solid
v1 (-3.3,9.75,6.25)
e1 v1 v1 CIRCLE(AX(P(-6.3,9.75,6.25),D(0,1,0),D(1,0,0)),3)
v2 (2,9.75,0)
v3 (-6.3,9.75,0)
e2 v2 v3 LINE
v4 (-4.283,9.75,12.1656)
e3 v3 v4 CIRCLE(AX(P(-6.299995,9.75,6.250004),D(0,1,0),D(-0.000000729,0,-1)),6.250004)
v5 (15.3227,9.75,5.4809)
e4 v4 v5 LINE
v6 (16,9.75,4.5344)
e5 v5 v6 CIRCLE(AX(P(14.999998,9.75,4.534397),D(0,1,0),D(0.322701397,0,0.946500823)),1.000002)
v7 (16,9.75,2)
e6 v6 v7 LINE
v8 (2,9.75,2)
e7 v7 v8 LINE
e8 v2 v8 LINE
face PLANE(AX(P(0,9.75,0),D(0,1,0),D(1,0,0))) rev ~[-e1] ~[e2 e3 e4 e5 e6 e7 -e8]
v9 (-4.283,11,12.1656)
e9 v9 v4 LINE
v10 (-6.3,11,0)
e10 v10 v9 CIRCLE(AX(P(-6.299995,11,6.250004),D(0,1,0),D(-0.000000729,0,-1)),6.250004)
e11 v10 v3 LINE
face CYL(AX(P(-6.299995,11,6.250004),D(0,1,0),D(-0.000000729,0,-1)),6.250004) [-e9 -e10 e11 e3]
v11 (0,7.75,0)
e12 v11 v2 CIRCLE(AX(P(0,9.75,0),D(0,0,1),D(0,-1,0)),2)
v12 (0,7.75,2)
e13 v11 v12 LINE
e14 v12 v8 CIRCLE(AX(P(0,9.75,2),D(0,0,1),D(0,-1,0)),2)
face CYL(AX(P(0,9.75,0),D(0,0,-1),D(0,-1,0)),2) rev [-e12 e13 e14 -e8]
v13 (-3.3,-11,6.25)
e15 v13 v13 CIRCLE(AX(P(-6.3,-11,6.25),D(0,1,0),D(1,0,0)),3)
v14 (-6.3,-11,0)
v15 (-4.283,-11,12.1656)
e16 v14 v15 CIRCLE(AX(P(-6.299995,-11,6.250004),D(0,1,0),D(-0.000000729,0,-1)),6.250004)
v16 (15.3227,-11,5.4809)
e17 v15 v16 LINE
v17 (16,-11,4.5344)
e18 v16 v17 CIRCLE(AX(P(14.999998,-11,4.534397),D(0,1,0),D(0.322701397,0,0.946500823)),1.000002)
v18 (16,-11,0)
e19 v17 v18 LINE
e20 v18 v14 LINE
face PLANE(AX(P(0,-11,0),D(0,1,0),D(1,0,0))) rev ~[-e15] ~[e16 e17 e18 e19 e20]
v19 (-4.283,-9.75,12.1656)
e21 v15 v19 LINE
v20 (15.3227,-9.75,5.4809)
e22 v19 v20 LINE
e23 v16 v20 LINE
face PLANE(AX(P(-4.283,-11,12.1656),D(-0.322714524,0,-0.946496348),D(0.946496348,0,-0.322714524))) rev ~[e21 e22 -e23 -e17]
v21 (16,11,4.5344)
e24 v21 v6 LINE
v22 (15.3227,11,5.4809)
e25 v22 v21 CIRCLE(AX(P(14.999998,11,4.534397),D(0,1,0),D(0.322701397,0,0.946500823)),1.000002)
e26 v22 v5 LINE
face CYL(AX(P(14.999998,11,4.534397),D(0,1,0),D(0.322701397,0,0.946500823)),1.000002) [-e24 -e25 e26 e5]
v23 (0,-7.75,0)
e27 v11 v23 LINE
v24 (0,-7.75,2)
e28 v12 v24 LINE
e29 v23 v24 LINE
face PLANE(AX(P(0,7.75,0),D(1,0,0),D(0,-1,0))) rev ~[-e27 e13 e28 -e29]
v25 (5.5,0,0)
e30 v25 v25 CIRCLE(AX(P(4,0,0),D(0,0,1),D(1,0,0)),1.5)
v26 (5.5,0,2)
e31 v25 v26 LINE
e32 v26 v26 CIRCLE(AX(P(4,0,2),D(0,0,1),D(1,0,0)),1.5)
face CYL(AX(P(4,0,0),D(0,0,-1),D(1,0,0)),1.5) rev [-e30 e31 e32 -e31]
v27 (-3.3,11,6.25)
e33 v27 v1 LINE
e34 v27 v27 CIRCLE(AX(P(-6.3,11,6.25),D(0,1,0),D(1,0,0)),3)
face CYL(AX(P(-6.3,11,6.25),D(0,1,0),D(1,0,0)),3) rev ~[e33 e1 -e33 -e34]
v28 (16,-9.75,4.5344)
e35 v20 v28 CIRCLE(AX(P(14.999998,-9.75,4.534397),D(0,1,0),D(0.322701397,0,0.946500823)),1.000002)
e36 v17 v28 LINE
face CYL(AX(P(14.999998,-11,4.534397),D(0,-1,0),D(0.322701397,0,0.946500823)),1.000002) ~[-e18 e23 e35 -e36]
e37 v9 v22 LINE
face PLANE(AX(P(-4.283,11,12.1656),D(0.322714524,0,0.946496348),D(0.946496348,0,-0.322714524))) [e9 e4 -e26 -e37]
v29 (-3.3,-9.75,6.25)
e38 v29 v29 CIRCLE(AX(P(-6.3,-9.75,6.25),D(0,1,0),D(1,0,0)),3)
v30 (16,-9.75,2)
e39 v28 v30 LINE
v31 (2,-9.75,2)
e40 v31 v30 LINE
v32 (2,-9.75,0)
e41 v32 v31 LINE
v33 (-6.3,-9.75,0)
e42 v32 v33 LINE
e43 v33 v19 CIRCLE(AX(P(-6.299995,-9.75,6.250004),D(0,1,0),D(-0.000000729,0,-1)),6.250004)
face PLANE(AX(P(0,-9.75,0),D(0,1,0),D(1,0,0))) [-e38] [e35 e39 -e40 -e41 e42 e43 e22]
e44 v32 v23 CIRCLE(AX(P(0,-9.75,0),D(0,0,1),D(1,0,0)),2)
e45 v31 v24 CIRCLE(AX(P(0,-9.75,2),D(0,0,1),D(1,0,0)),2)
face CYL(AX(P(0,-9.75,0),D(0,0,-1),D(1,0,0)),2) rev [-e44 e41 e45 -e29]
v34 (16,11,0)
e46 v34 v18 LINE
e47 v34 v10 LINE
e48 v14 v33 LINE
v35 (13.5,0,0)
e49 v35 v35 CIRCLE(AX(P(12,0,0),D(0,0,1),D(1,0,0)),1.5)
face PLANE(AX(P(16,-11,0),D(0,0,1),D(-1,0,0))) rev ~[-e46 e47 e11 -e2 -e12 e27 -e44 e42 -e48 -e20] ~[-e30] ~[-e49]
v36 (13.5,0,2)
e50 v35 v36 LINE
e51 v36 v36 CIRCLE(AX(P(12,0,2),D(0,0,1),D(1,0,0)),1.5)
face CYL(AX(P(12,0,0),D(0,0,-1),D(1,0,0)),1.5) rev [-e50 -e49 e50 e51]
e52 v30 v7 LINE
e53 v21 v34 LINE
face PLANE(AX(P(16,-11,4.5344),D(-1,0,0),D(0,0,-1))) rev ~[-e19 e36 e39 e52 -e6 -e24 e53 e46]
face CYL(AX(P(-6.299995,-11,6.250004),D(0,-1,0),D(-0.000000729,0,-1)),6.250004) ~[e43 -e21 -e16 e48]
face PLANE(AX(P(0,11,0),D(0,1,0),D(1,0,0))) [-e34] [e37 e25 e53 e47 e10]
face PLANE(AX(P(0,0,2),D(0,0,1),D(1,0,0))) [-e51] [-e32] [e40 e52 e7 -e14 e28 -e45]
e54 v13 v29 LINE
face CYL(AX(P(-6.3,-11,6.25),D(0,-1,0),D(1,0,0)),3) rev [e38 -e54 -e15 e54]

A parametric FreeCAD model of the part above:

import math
import FreeCAD as App
import Part
import Sketcher

V = App.Vector
Q = App.Units.Quantity

doc = App.newDocument("Part")
body = doc.addObject("PartDesign::Body", "Body")

sketch1 = doc.addObject("Sketcher::SketchObject", "Sketch")
body.addObject(sketch1)
sketch1.AttachmentSupport = (doc.XY_Plane, [""])
sketch1.MapMode = "FlatFace"
sketch1.addGeometry(Part.ArcOfCircle(Part.Circle(V(0, -9.8, 0), V(0, 0, 1), 2), math.radians(0), math.radians(90)), False)
sketch1.addGeometry(Part.LineSegment(V(2, -9.8, 0), V(16, -9.8, 0)), False)
sketch1.addGeometry(Part.LineSegment(V(16, -9.8, 0), V(16, 9.8, 0)), False)
sketch1.addGeometry(Part.LineSegment(V(16, 9.8, 0), V(2, 9.8, 0)), False)
sketch1.addGeometry(Part.ArcOfCircle(Part.Circle(V(0, 9.8, 0), V(0, 0, 1), 2), math.radians(-90), math.radians(0)), False)
sketch1.addGeometry(Part.LineSegment(V(0, 7.8, 0), V(0, -7.8, 0)), False)
sketch1.addGeometry(Part.Circle(V(4, 0, 0), V(0, 0, 1), 1.5), False)
sketch1.addGeometry(Part.Circle(V(12, 0, 0), V(0, 0, 1), 1.5), False)
sketch1.addConstraint(Sketcher.Constraint("Coincident", 0, 1, 1, 1))
sketch1.addConstraint(Sketcher.Constraint("Coincident", 1, 2, 2, 1))
sketch1.addConstraint(Sketcher.Constraint("Coincident", 2, 2, 3, 1))
sketch1.addConstraint(Sketcher.Constraint("Coincident", 3, 2, 4, 2))
sketch1.addConstraint(Sketcher.Constraint("Coincident", 4, 1, 5, 1))
sketch1.addConstraint(Sketcher.Constraint("Coincident", 5, 2, 0, 2))
sketch1.addConstraint(Sketcher.Constraint("Horizontal", 1))
sketch1.addConstraint(Sketcher.Constraint("Vertical", 2))
sketch1.addConstraint(Sketcher.Constraint("Horizontal", 3))
sketch1.addConstraint(Sketcher.Constraint("Vertical", 5))
sketch1.addConstraint(Sketcher.Constraint("Equal", 0, 4))
sketch1.addConstraint(Sketcher.Constraint("Equal", 6, 7))
sketch1.addConstraint(Sketcher.Constraint("Symmetric", 0, 3, 4, 3, -1, 1))
sketch1.addConstraint(Sketcher.Constraint("Symmetric", 0, 1, 3, 2, -1))
sketch1.addConstraint(Sketcher.Constraint("PointOnObject", 6, 3, -1))
sketch1.addConstraint(Sketcher.Constraint("PointOnObject", 7, 3, -1))
sketch1.addConstraint(Sketcher.Constraint("PointOnObject", 4, 1, -2))
sketch1.addConstraint(Sketcher.Constraint("Horizontal", 4, 3, 2, 2))
sketch1.addConstraint(Sketcher.Constraint("Diameter", 6, Q("3 mm")))
sketch1.addConstraint(Sketcher.Constraint("Radius", 0, Q("2 mm")))
sketch1.addConstraint(Sketcher.Constraint("DistanceX", 1, 1, 1, 2, Q("14 mm")))
sketch1.addConstraint(Sketcher.Constraint("DistanceY", 2, 1, 2, 2, Q("19.5 mm")))
sketch1.addConstraint(Sketcher.Constraint("DistanceX", -1, 1, 6, 3, Q("4 mm")))
sketch1.addConstraint(Sketcher.Constraint("DistanceX", -1, 1, 7, 3, Q("12 mm")))
pad1 = doc.addObject("PartDesign::Pad", "Pad")
body.addObject(pad1)
pad1.Profile = sketch1
pad1.Length = 2

sketch2 = doc.addObject("Sketcher::SketchObject", "Sketch001")
body.addObject(sketch2)
sketch2.AttachmentSupport = (doc.XZ_Plane, [""])
sketch2.MapMode = "FlatFace"
sketch2.AttachmentOffset = App.Placement(V(0, 0, -11), App.Rotation())
sketch2.addGeometry(Part.LineSegment(V(16, 0, 0), V(-6.3, 0, 0)), False)
sketch2.addGeometry(Part.ArcOfCircle(Part.Circle(V(-6.3, 6.2, 0), V(0, 0, 1), 6.2), math.radians(71), math.radians(270)), False)
sketch2.addGeometry(Part.LineSegment(V(-4.3, 12.2, 0), V(15.3, 5.5, 0)), False)
sketch2.addGeometry(Part.ArcOfCircle(Part.Circle(V(15, 4.5, 0), V(0, 0, 1), 1), math.radians(0), math.radians(71)), False)
sketch2.addGeometry(Part.LineSegment(V(16, 4.5, 0), V(16, 0, 0)), False)
sketch2.addGeometry(Part.Circle(V(-6.3, 6.2, 0), V(0, 0, 1), 3), False)
sketch2.addConstraint(Sketcher.Constraint("Tangent", 0, 2, 1, 2))
sketch2.addConstraint(Sketcher.Constraint("Tangent", 1, 1, 2, 1))
sketch2.addConstraint(Sketcher.Constraint("Tangent", 2, 2, 3, 2))
sketch2.addConstraint(Sketcher.Constraint("Tangent", 3, 1, 4, 1))
sketch2.addConstraint(Sketcher.Constraint("Coincident", 4, 2, 0, 1))
sketch2.addConstraint(Sketcher.Constraint("Horizontal", 0))
sketch2.addConstraint(Sketcher.Constraint("Vertical", 4))
sketch2.addConstraint(Sketcher.Constraint("Coincident", 5, 3, 1, 3))
sketch2.addConstraint(Sketcher.Constraint("PointOnObject", 0, 2, -1))
sketch2.addConstraint(Sketcher.Constraint("Diameter", 5, Q("6 mm")))
sketch2.addConstraint(Sketcher.Constraint("Radius", 3, Q("1 mm")))
sketch2.addConstraint(Sketcher.Constraint("Radius", 1, Q("6.25 mm")))
sketch2.addConstraint(Sketcher.Constraint("DistanceX", 0, 2, 0, 1, Q("22.3 mm")))
sketch2.addConstraint(Sketcher.Constraint("DistanceX", -1, 1, 3, 3, Q("15 mm")))
sketch2.addConstraint(Sketcher.Constraint("Distance", 2, Q("20.714 mm")))
pad2 = doc.addObject("PartDesign::Pad", "Pad001")
body.addObject(pad2)
pad2.Profile = sketch2
pad2.Length = 1.25

sketch3 = doc.addObject("Sketcher::SketchObject", "Sketch002")
body.addObject(sketch3)
sketch3.AttachmentSupport = (doc.XZ_Plane, [""])
sketch3.MapMode = "FlatFace"
sketch3.AttachmentOffset = App.Placement(V(0, 0, 11), App.Rotation())
sketch3.addGeometry(Part.LineSegment(V(16, 0, 0), V(-6.3, 0, 0)), False)
sketch3.addGeometry(Part.ArcOfCircle(Part.Circle(V(-6.3, 6.2, 0), V(0, 0, 1), 6.2), math.radians(71), math.radians(270)), False)
sketch3.addGeometry(Part.LineSegment(V(-4.3, 12.2, 0), V(15.3, 5.5, 0)), False)
sketch3.addGeometry(Part.ArcOfCircle(Part.Circle(V(15, 4.5, 0), V(0, 0, 1), 1), math.radians(0), math.radians(71)), False)
sketch3.addGeometry(Part.LineSegment(V(16, 4.5, 0), V(16, 0, 0)), False)
sketch3.addGeometry(Part.Circle(V(-6.3, 6.2, 0), V(0, 0, 1), 3), False)
sketch3.addConstraint(Sketcher.Constraint("Tangent", 0, 2, 1, 2))
sketch3.addConstraint(Sketcher.Constraint("Tangent", 1, 1, 2, 1))
sketch3.addConstraint(Sketcher.Constraint("Tangent", 2, 2, 3, 2))
sketch3.addConstraint(Sketcher.Constraint("Tangent", 3, 1, 4, 1))
sketch3.addConstraint(Sketcher.Constraint("Coincident", 4, 2, 0, 1))
sketch3.addConstraint(Sketcher.Constraint("Horizontal", 0))
sketch3.addConstraint(Sketcher.Constraint("Vertical", 4))
sketch3.addConstraint(Sketcher.Constraint("Coincident", 5, 3, 1, 3))
sketch3.addConstraint(Sketcher.Constraint("PointOnObject", 0, 2, -1))
sketch3.addConstraint(Sketcher.Constraint("Diameter", 5, Q("6 mm")))
sketch3.addConstraint(Sketcher.Constraint("Radius", 3, Q("1 mm")))
sketch3.addConstraint(Sketcher.Constraint("Radius", 1, Q("6.25 mm")))
sketch3.addConstraint(Sketcher.Constraint("DistanceX", 0, 2, 0, 1, Q("22.3 mm")))
sketch3.addConstraint(Sketcher.Constraint("DistanceX", -1, 1, 3, 3, Q("15 mm")))
sketch3.addConstraint(Sketcher.Constraint("Distance", 2, Q("20.714 mm")))
pad3 = doc.addObject("PartDesign::Pad", "Pad002")
body.addObject(pad3)
pad3.Profile = sketch3
pad3.Length = 1.25
pad3.Reversed = True

doc.recompute()
